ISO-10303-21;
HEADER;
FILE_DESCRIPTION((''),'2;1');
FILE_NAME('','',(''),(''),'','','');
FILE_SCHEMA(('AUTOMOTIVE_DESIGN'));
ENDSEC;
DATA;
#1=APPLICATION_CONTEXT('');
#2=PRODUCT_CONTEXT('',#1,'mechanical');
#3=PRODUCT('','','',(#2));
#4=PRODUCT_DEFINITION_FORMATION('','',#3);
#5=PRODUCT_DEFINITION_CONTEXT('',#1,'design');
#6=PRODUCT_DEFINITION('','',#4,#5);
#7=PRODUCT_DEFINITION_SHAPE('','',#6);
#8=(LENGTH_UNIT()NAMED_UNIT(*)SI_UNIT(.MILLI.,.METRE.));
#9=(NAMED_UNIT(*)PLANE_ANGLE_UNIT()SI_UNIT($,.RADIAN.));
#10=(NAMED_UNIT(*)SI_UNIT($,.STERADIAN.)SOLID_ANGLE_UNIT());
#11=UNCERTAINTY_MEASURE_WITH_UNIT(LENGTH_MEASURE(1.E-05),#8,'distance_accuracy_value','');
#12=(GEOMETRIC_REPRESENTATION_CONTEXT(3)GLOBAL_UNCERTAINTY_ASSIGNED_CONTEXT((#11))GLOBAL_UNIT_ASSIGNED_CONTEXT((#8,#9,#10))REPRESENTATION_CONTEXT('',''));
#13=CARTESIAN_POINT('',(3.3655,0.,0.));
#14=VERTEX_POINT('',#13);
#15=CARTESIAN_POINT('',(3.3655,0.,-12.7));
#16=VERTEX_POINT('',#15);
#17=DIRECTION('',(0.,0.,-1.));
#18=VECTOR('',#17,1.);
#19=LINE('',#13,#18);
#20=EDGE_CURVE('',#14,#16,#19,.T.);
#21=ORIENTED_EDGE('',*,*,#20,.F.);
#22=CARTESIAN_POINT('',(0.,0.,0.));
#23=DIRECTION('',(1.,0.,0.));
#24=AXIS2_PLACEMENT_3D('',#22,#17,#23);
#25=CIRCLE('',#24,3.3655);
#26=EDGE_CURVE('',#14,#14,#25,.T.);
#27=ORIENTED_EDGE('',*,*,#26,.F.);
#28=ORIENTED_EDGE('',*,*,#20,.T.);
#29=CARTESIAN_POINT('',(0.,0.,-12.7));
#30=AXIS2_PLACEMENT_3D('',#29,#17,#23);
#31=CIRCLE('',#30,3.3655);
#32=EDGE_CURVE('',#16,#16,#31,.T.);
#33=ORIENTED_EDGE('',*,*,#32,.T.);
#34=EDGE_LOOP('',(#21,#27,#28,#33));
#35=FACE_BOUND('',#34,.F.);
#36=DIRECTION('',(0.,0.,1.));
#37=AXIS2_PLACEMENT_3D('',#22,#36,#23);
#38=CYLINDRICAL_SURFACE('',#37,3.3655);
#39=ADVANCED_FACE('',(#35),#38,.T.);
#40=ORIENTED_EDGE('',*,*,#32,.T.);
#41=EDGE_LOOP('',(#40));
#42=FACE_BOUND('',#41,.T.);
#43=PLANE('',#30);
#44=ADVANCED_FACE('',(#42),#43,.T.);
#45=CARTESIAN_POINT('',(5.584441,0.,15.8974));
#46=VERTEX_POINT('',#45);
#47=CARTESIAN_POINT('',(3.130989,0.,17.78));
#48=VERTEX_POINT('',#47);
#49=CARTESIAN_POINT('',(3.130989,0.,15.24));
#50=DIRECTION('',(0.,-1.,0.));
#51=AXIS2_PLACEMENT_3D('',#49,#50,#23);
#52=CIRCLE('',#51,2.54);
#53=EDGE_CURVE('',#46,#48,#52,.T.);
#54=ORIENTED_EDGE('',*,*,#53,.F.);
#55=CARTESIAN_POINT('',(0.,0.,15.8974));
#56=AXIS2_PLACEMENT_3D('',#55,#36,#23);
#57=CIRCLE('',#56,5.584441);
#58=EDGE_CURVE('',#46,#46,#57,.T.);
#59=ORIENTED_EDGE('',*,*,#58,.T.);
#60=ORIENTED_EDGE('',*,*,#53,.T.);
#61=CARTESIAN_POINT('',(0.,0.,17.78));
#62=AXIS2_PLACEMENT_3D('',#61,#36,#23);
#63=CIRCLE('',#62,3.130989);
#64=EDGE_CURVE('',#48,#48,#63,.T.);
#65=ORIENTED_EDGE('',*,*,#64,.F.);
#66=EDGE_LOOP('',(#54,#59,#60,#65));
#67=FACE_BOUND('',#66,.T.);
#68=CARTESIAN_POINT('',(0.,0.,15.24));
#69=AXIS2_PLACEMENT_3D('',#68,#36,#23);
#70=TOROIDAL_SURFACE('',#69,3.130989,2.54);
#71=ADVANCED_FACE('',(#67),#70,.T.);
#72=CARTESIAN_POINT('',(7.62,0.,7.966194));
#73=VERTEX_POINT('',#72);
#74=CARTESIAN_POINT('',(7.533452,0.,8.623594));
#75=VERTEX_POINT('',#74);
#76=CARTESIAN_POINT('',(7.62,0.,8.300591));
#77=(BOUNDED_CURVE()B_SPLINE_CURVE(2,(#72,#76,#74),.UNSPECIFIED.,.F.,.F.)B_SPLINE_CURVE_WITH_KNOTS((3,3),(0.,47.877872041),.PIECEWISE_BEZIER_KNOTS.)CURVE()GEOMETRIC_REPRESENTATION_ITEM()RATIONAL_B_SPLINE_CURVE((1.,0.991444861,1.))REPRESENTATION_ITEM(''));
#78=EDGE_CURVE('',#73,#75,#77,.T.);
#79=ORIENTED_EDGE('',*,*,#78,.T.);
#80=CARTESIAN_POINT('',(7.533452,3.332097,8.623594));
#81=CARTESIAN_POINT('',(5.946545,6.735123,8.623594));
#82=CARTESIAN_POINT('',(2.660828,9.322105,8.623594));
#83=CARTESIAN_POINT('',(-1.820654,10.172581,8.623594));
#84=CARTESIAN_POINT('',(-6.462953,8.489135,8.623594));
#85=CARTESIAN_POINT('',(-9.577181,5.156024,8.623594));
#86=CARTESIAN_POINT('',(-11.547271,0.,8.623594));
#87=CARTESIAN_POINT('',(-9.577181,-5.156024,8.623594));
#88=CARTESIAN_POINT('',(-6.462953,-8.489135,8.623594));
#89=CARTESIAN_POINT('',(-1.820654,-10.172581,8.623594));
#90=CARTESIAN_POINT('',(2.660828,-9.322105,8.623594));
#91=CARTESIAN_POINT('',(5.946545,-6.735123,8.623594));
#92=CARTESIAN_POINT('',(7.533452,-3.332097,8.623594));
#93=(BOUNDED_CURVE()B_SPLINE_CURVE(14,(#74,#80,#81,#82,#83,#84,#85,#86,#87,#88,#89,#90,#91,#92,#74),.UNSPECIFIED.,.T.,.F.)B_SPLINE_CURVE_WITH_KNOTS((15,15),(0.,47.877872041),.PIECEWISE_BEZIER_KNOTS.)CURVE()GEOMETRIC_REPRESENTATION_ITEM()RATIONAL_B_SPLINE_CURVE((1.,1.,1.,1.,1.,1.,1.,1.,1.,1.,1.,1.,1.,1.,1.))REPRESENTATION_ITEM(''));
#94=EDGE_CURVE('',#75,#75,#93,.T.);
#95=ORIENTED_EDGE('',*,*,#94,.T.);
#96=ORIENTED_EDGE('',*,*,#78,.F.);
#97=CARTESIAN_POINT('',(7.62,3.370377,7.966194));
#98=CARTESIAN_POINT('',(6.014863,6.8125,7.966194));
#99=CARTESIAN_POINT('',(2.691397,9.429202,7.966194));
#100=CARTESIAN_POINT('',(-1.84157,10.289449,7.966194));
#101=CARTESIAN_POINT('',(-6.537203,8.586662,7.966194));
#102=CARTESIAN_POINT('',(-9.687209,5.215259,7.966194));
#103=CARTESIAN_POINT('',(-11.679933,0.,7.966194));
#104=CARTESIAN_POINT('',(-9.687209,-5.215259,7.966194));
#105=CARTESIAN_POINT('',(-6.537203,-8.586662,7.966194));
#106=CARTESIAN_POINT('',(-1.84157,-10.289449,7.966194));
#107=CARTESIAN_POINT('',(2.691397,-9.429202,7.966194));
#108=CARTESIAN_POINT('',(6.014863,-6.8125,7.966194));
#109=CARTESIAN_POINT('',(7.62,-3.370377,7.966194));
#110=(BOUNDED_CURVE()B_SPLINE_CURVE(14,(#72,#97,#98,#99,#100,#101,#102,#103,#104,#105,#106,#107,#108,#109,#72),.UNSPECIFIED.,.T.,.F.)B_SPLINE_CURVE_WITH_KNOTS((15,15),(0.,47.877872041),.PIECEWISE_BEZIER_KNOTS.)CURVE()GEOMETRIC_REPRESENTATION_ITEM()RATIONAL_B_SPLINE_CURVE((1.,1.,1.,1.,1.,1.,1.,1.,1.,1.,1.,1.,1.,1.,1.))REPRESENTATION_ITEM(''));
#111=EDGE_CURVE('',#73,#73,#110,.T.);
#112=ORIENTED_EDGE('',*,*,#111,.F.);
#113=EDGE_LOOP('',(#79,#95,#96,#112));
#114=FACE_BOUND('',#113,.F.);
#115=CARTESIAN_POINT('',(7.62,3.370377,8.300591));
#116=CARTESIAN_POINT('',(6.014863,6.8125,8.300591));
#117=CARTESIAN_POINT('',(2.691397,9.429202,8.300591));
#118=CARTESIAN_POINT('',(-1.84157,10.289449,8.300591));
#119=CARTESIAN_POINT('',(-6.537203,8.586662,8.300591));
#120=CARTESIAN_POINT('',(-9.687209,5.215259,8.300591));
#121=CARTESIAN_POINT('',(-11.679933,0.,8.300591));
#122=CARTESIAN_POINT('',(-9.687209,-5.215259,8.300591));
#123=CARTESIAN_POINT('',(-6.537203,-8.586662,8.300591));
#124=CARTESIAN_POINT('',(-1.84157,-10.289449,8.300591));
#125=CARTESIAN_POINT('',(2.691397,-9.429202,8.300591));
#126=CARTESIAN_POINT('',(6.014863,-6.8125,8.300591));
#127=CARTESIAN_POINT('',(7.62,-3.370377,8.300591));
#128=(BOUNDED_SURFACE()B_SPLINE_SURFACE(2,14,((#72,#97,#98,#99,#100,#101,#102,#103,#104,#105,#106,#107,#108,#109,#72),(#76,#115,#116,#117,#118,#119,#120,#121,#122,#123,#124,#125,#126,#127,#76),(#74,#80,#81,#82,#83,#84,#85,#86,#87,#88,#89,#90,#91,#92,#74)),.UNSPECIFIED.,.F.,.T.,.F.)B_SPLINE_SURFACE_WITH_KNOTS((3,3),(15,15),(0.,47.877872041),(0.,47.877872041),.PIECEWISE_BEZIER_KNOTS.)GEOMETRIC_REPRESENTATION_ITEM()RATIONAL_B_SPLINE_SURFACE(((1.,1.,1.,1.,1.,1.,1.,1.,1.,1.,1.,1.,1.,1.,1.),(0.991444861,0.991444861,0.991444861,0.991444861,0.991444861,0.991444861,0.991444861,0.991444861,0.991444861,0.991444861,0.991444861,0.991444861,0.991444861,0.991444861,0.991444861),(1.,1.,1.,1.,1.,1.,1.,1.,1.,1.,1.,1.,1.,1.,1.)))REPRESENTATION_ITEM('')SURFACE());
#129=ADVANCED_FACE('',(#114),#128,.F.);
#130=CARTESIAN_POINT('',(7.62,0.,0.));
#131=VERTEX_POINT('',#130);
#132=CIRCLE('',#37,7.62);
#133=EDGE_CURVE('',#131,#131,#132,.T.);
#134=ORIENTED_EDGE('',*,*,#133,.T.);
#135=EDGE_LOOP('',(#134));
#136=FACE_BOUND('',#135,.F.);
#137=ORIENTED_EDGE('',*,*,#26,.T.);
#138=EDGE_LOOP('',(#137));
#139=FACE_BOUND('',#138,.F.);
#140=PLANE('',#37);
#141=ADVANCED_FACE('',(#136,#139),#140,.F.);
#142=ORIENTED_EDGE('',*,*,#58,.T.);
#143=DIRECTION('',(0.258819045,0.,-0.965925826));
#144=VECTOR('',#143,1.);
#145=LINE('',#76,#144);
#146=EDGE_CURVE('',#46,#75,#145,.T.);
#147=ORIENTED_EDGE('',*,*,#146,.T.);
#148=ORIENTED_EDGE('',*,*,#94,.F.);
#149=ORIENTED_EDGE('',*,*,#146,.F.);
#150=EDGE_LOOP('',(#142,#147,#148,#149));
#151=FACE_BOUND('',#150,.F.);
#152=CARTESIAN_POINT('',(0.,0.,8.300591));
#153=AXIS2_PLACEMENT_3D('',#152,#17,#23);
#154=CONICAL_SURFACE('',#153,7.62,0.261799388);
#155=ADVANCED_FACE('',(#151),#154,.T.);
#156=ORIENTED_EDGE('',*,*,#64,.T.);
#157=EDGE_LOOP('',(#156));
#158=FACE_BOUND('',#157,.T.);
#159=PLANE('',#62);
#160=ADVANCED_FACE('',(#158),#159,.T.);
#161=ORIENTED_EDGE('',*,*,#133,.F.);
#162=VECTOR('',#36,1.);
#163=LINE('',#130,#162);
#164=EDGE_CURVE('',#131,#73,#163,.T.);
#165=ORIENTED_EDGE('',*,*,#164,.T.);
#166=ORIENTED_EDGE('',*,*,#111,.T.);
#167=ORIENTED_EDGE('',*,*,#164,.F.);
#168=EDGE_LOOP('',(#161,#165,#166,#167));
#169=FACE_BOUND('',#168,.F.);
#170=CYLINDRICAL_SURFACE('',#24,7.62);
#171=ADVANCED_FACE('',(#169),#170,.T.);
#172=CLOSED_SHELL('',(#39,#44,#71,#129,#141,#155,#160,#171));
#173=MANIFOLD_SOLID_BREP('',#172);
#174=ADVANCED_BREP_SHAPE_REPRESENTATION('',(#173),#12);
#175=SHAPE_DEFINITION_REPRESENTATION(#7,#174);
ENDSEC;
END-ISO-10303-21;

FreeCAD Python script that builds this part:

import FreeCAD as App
import Part
import Sketcher
from FreeCAD import Vector
Q = App.Units.Quantity


def edges_at(feature, points):
    """Names of the edges that pass closest to the given points."""
    edges = feature.Shape.Edges
    near = lambda p: min(range(len(edges)), key=lambda i: edges[i].distToShape(Part.Vertex(*p))[0])
    return sorted({f"Edge{near(p) + 1}" for p in points})

doc = App.newDocument("Part")
params = doc.addObject("Spreadsheet::Sheet", "Params")
for row, (alias, value) in enumerate([
    ("sketch1_diameter", "0.6 in"),
    ("pad1_length", "0.7 in"),
    ("chamfer_size", "0.1 in"),
    ("chamfer_size2", "9.479409 mm"),
    ("fillet_radius", "0.1 in"),
    ("sketch2_diameter", "0.265 in"),
    ("pad2_length", "0.5 in"),
], start=1):
    params.set(f"A{row}", alias)
    params.set(f"B{row}", "=" + value)
    params.setAlias(f"B{row}", alias)

body = doc.addObject("PartDesign::Body", "Body")

sketch1 = doc.addObject("Sketcher::SketchObject", "Sketch")
body.addObject(sketch1)
sketch1.AttachmentSupport = (doc.XY_Plane, [""])
sketch1.MapMode = "FlatFace"
sketch1.addGeometry(Part.Circle(Vector(0, 0, 0), Vector(0, 0, 1), 7.62), False)
sketch1.addConstraint([
    Sketcher.Constraint("Coincident", 0, 3, -1, 1),
    Sketcher.Constraint("Diameter", 0, Q("0.6 in")),
])
sketch1.setExpression("Constraints[1]", "Params.sketch1_diameter")
pad1 = doc.addObject("PartDesign::Pad", "Pad")
body.addObject(pad1)
pad1.Profile = sketch1
pad1.setExpression("Length", "Params.pad1_length")
doc.recompute()

chamfer = doc.addObject("PartDesign::Chamfer", "Chamfer")
body.addObject(chamfer)
chamfer.Base = (pad1, edges_at(pad1, [(-7.62, 0, 17.78)]))
chamfer.ChamferType = "Two distances"
chamfer.setExpression("Size", "Params.chamfer_size")
chamfer.setExpression("Size2", "Params.chamfer_size2")
chamfer.FlipDirection = True
doc.recompute()

fillet = doc.addObject("PartDesign::Fillet", "Fillet")
body.addObject(fillet)
fillet.Base = (chamfer, edges_at(chamfer, [(-5.08, 0, 17.78), (-7.62, 0, 8.301)]))
fillet.setExpression("Radius", "Params.fillet_radius")

sketch2 = doc.addObject("Sketcher::SketchObject", "Sketch001")
body.addObject(sketch2)
sketch2.AttachmentSupport = (doc.XY_Plane, [""])
sketch2.MapMode = "FlatFace"
sketch2.addGeometry(Part.Circle(Vector(0, 0, 0), Vector(0, 0, 1), 3.3655), False)
sketch2.addConstraint([
    Sketcher.Constraint("Coincident", 0, 3, -1, 1),
    Sketcher.Constraint("Diameter", 0, Q("0.265 in")),
])
sketch2.setExpression("Constraints[1]", "Params.sketch2_diameter")
pad2 = doc.addObject("PartDesign::Pad", "Pad001")
body.addObject(pad2)
pad2.Profile = sketch2
pad2.setExpression("Length", "Params.pad2_length")
pad2.Reversed = True

doc.recompute()
